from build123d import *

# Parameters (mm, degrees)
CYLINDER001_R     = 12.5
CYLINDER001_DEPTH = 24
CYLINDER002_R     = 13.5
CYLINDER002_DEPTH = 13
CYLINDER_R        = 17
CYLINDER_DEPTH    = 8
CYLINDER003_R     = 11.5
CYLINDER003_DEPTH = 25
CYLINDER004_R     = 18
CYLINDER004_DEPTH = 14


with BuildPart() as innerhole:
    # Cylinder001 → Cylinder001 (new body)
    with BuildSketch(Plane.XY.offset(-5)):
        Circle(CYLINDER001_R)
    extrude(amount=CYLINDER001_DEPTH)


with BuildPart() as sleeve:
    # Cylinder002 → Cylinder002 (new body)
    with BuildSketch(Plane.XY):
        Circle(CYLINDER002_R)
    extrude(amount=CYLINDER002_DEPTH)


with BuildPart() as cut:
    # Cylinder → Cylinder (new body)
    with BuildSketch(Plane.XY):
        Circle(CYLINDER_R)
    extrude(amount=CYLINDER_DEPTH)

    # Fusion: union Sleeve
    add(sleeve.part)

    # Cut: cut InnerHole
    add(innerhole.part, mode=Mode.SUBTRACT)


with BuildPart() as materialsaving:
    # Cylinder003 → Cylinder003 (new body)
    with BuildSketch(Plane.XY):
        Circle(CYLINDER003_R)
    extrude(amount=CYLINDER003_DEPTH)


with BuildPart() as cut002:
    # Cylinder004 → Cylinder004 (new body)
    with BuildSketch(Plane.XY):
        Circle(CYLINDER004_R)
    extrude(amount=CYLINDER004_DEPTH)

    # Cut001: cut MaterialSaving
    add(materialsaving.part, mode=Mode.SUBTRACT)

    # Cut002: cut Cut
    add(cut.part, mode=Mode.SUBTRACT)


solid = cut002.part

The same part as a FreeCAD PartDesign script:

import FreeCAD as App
import Part
import Sketcher

doc = App.newDocument("Part")
body = doc.addObject("PartDesign::Body", "Body")

# Sketch on XY plane
sketch1 = doc.addObject("Sketcher::SketchObject", "Sketch")
body.addObject(sketch1)
sketch1.AttachmentSupport = (doc.XY_Plane, [""])
sketch1.MapMode = "FlatFace"
sketch1.AttachmentOffset = App.Placement(App.Vector(0, 0, -5), App.Rotation())
sketch1.addGeometry(Part.Circle(App.Vector(0, 0, 0), App.Vector(0, 0, 1), 12.5), False)
sketch1.addConstraint([
    Sketcher.Constraint("Coincident", 0, 3, -1, 1),
    Sketcher.Constraint("Diameter", 0, 25.0),
])
pad1 = doc.addObject("PartDesign::Pad", "Pad")
body.addObject(pad1)
pad1.Profile = sketch1
pad1.Length = 24
body2 = doc.addObject("PartDesign::Body", "Body001")

# Sketch on XY plane
sketch2 = doc.addObject("Sketcher::SketchObject", "Sketch001")
body2.addObject(sketch2)
sketch2.AttachmentSupport = (doc.getObject("XY_Plane001"), [""])
sketch2.MapMode = "FlatFace"
sketch2.addGeometry(Part.Circle(App.Vector(0, 0, 0), App.Vector(0, 0, 1), 13.5), False)
sketch2.addConstraint([
    Sketcher.Constraint("Coincident", 0, 3, -1, 1),
    Sketcher.Constraint("Diameter", 0, 27.0),
])
pad2 = doc.addObject("PartDesign::Pad", "Pad001")
body2.addObject(pad2)
pad2.Profile = sketch2
pad2.Length = 13
body3 = doc.addObject("PartDesign::Body", "Body002")

# Sketch on XY plane
sketch3 = doc.addObject("Sketcher::SketchObject", "Sketch002")
body3.addObject(sketch3)
sketch3.AttachmentSupport = (doc.getObject("XY_Plane002"), [""])
sketch3.MapMode = "FlatFace"
sketch3.addGeometry(Part.Circle(App.Vector(0, 0, 0), App.Vector(0, 0, 1), 17), False)
sketch3.addConstraint([
    Sketcher.Constraint("Coincident", 0, 3, -1, 1),
    Sketcher.Constraint("Diameter", 0, 34.0),
])
pad3 = doc.addObject("PartDesign::Pad", "Pad002")
body3.addObject(pad3)
pad3.Profile = sketch3
pad3.Length = 8
doc.recompute()

boolean = doc.addObject("PartDesign::Boolean", "Boolean")
body3.addObject(boolean)
boolean.Type = "Fuse"
boolean.addObjects([body2])
doc.recompute()

boolean2 = doc.addObject("PartDesign::Boolean", "Boolean001")
body3.addObject(boolean2)
boolean2.Type = "Cut"
boolean2.addObjects([body])
body4 = doc.addObject("PartDesign::Body", "Body003")

# Sketch on XY plane
sketch4 = doc.addObject("Sketcher::SketchObject", "Sketch003")
body4.addObject(sketch4)
sketch4.AttachmentSupport = (doc.getObject("XY_Plane003"), [""])
sketch4.MapMode = "FlatFace"
sketch4.addGeometry(Part.Circle(App.Vector(0, 0, 0), App.Vector(0, 0, 1), 11.5), False)
sketch4.addConstraint([
    Sketcher.Constraint("Coincident", 0, 3, -1, 1),
    Sketcher.Constraint("Diameter", 0, 23.0),
])
pad4 = doc.addObject("PartDesign::Pad", "Pad003")
body4.addObject(pad4)
pad4.Profile = sketch4
pad4.Length = 25
body5 = doc.addObject("PartDesign::Body", "Body004")

# Sketch on XY plane
sketch5 = doc.addObject("Sketcher::SketchObject", "Sketch004")
body5.addObject(sketch5)
sketch5.AttachmentSupport = (doc.getObject("XY_Plane004"), [""])
sketch5.MapMode = "FlatFace"
sketch5.addGeometry(Part.Circle(App.Vector(0, 0, 0), App.Vector(0, 0, 1), 18), False)
sketch5.addConstraint([
    Sketcher.Constraint("Coincident", 0, 3, -1, 1),
    Sketcher.Constraint("Diameter", 0, 36.0),
])
pad5 = doc.addObject("PartDesign::Pad", "Pad004")
body5.addObject(pad5)
pad5.Profile = sketch5
pad5.Length = 14
doc.recompute()

boolean3 = doc.addObject("PartDesign::Boolean", "Boolean002")
body5.addObject(boolean3)
boolean3.Type = "Cut"
boolean3.addObjects([body4])
doc.recompute()

boolean4 = doc.addObject("PartDesign::Boolean", "Boolean003")
body5.addObject(boolean4)
boolean4.Type = "Cut"
boolean4.addObjects([body3])

doc.recompute()
